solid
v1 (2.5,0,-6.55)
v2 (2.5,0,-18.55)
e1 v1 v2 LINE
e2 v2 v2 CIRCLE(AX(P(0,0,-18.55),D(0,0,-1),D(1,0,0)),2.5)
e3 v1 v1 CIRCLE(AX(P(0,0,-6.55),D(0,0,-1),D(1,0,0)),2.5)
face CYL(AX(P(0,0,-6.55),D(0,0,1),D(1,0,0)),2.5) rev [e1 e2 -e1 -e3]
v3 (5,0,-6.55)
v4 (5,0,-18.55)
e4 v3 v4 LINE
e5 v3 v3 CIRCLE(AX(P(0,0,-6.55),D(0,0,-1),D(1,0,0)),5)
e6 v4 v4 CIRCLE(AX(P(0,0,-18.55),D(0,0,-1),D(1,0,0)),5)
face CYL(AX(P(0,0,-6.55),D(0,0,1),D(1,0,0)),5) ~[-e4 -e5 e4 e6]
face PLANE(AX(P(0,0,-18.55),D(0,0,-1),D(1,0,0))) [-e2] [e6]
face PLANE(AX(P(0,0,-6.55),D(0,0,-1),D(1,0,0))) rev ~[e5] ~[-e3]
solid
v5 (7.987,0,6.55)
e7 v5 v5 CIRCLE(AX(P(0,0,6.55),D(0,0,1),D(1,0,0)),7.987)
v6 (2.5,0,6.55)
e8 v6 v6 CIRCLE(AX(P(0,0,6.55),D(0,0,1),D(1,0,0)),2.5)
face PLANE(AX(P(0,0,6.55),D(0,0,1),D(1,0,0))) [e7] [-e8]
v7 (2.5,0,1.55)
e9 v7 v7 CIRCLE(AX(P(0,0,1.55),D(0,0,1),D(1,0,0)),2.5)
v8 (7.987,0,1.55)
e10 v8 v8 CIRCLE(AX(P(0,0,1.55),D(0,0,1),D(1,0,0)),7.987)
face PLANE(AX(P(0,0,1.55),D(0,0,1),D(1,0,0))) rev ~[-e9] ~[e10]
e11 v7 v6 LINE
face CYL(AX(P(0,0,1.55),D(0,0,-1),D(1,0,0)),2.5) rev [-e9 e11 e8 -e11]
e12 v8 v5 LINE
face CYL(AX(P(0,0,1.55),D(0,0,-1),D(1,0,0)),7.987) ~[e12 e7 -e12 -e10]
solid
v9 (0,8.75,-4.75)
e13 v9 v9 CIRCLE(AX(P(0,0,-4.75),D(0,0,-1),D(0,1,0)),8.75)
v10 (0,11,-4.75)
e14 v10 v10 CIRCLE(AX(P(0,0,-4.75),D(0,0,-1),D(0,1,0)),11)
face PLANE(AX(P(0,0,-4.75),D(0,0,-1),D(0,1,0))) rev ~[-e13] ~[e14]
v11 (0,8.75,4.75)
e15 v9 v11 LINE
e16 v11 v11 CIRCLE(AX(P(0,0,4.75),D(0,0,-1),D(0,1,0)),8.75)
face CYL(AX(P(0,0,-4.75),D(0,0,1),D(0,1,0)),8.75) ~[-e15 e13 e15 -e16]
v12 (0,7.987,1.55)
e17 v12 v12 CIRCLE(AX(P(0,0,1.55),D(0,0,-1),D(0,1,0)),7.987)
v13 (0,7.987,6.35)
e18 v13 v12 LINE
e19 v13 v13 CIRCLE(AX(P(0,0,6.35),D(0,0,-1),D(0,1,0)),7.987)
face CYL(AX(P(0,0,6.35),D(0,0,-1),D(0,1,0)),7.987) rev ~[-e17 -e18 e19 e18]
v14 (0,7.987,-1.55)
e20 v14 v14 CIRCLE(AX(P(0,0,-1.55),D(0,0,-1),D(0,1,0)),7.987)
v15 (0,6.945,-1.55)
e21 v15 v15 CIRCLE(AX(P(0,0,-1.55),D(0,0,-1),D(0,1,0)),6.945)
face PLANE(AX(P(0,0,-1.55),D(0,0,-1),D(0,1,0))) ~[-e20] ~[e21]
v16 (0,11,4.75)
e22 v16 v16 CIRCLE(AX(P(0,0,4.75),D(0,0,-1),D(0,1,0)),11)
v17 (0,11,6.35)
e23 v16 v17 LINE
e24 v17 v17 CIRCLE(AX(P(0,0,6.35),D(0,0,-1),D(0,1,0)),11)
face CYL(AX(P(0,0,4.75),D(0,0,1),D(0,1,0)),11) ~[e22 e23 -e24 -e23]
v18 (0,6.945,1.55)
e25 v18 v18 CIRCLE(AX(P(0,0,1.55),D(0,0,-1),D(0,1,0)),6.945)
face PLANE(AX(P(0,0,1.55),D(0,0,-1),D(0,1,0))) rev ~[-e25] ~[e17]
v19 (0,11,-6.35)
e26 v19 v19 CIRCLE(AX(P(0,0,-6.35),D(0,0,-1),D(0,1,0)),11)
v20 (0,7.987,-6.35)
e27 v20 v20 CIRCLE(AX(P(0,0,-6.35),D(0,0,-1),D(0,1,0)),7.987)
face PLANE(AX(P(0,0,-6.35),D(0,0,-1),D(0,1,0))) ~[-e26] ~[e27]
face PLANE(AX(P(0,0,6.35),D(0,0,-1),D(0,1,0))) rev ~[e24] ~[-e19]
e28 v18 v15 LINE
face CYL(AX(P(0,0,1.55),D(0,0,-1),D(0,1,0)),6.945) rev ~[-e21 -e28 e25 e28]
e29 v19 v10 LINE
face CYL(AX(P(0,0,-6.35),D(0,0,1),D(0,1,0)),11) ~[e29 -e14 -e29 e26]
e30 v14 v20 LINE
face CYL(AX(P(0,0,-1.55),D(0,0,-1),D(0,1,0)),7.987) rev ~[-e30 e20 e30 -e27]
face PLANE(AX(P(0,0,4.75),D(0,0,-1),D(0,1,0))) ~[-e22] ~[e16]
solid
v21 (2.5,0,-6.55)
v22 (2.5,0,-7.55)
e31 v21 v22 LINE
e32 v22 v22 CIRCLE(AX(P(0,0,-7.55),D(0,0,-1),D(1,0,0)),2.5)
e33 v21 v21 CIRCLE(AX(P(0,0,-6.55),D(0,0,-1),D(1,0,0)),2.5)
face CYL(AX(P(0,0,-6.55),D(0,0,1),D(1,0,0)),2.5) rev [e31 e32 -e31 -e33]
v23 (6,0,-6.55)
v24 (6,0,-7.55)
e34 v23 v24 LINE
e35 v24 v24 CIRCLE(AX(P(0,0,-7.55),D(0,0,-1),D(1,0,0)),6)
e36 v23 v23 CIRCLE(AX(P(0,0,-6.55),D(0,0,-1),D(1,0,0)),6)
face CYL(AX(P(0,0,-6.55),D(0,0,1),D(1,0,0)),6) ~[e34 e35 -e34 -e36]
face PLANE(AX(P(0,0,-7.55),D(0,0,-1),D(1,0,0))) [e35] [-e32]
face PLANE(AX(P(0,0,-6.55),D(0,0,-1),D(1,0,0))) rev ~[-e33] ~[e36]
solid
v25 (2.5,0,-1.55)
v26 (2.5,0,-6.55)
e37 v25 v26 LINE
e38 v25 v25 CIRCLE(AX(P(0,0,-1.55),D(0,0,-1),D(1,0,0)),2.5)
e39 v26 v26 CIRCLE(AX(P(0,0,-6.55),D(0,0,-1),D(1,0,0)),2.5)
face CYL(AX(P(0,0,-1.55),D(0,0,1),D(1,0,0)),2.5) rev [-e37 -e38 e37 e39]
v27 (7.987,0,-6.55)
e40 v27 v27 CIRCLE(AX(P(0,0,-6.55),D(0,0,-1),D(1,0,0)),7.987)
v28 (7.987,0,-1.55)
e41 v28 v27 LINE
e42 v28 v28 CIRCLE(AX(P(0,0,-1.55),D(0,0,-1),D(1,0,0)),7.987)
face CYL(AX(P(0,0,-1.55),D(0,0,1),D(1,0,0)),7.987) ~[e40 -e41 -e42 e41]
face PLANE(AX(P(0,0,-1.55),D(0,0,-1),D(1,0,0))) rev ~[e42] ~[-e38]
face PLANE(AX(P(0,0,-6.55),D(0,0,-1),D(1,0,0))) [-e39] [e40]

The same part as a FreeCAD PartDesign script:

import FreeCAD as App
import Part
import Sketcher
from FreeCAD import Vector


def add_polygon(sketch, points):
    """Adds a closed chain of lines whose ends are joined by coincident constraints."""
    first, n = sketch.GeometryCount, len(points)
    for a, b in zip(points, points[1:] + points[:1]):
        sketch.addGeometry(Part.LineSegment(App.Vector(*a, 0), App.Vector(*b, 0)), False)
    for i in range(n):
        sketch.addConstraint(Sketcher.Constraint("Coincident", first + i, 2, first + (i + 1) % n, 1))

doc = App.newDocument("Part")
body = doc.addObject("PartDesign::Body", "Body")

# Sketch on YZ plane
sketch1 = doc.addObject("Sketcher::SketchObject", "Sketch")
body.addObject(sketch1)
sketch1.AttachmentSupport = (doc.YZ_Plane, [""])
sketch1.MapMode = "FlatFace"
add_polygon(sketch1, [(11, 4.8), (11, 6.3), (8, 6.3), (8, 1.6), (6.9, 1.6), (6.9, -1.6), (8, -1.6), (8, -6.3), (11, -6.3), (11, -4.8), (8.8, -4.8), (8.8, 4.8)])  # lines 0-11
sketch1.addConstraint([
    Sketcher.Constraint("Vertical", 0),
    Sketcher.Constraint("Horizontal", 1),
    Sketcher.Constraint("Vertical", 2),
    Sketcher.Constraint("Horizontal", 3),
    Sketcher.Constraint("Vertical", 4),
    Sketcher.Constraint("Horizontal", 5),
    Sketcher.Constraint("Vertical", 6),
    Sketcher.Constraint("Horizontal", 7),
    Sketcher.Constraint("Vertical", 8),
    Sketcher.Constraint("Horizontal", 9),
    Sketcher.Constraint("Vertical", 10),
    Sketcher.Constraint("Horizontal", 11),
    Sketcher.Constraint("Symmetric", 2, 2, 5, 2, -1),
    Sketcher.Constraint("Symmetric", 0, 2, 7, 2, -1),
    Sketcher.Constraint("Equal", 0, 8),
    Sketcher.Constraint("DistanceY", 0, 1, 0, 2, 1.6),
    Sketcher.Constraint("DistanceY", 2, 2, 2, 1, 4.8),
    Sketcher.Constraint("DistanceY", 4, 2, 4, 1, 3.1),
    Sketcher.Constraint("DistanceX", -1, 1, 0, 2, 11.0),
    Sketcher.Constraint("DistanceX", 9, 2, 9, 1, 2.25),
    Sketcher.Constraint("DistanceX", 1, 2, 1, 1, 3.013),
    Sketcher.Constraint("DistanceX", 3, 2, 3, 1, 1.042),
])
revolution = doc.addObject("PartDesign::Revolution", "Revolution")
body.addObject(revolution)
revolution.Profile = sketch1
revolution.ReferenceAxis = (sketch1, ["V_Axis"])
revolution.Angle = 360
body2 = doc.addObject("PartDesign::Body", "Body001")

# Sketch on XY plane
sketch2 = doc.addObject("Sketcher::SketchObject", "Sketch001")
body2.addObject(sketch2)
sketch2.AttachmentSupport = (doc.getObject("XY_Plane001"), [""])
sketch2.MapMode = "FlatFace"
sketch2.AttachmentOffset = App.Placement(Vector(0, 0, -1.55), App.Rotation())
sketch2.addGeometry([
    Part.Circle(Vector(0, 0, 0), Vector(0, 0, 1), 8),
    Part.Circle(Vector(0, 0, 0), Vector(0, 0, 1), 2.5),
], False)
sketch2.addConstraint([
    Sketcher.Constraint("Coincident", 0, 3, -1, 1),
    Sketcher.Constraint("Coincident", 1, 3, -1, 1),
    Sketcher.Constraint("Diameter", 1, 5.0),
    Sketcher.Constraint("Diameter", 0, 15.974),
])
pad1 = doc.addObject("PartDesign::Pad", "Pad")
body2.addObject(pad1)
pad1.Profile = sketch2
pad1.Length = 5
pad1.Reversed = True
body3 = doc.addObject("PartDesign::Body", "Body002")

# Sketch on XY plane
sketch3 = doc.addObject("Sketcher::SketchObject", "Sketch002")
body3.addObject(sketch3)
sketch3.AttachmentSupport = (doc.getObject("XY_Plane002"), [""])
sketch3.MapMode = "FlatFace"
sketch3.AttachmentOffset = App.Placement(Vector(0, 0, 1.55), App.Rotation())
sketch3.addGeometry([
    Part.Circle(Vector(0, 0, 0), Vector(0, 0, 1), 8),
    Part.Circle(Vector(0, 0, 0), Vector(0, 0, 1), 2.5),
], False)
sketch3.addConstraint([
    Sketcher.Constraint("Coincident", 0, 3, -1, 1),
    Sketcher.Constraint("Coincident", 1, 3, -1, 1),
    Sketcher.Constraint("Diameter", 1, 5.0),
    Sketcher.Constraint("Diameter", 0, 15.974),
])
pad2 = doc.addObject("PartDesign::Pad", "Pad001")
body3.addObject(pad2)
pad2.Profile = sketch3
pad2.Length = 5
body4 = doc.addObject("PartDesign::Body", "Body003")

# Sketch on XY plane
sketch4 = doc.addObject("Sketcher::SketchObject", "Sketch003")
body4.addObject(sketch4)
sketch4.AttachmentSupport = (doc.getObject("XY_Plane003"), [""])
sketch4.MapMode = "FlatFace"
sketch4.AttachmentOffset = App.Placement(Vector(0, 0, -6.55), App.Rotation())
sketch4.addGeometry([
    Part.Circle(Vector(0, 0, 0), Vector(0, 0, 1), 5),
    Part.Circle(Vector(0, 0, 0), Vector(0, 0, 1), 2.5),
], False)
sketch4.addConstraint([
    Sketcher.Constraint("Coincident", 0, 3, -1, 1),
    Sketcher.Constraint("Coincident", 1, 3, -1, 1),
    Sketcher.Constraint("Diameter", 0, 10.0),
    Sketcher.Constraint("Diameter", 1, 5.0),
])
pad3 = doc.addObject("PartDesign::Pad", "Pad002")
body4.addObject(pad3)
pad3.Profile = sketch4
pad3.Length = 12
pad3.Reversed = True
body5 = doc.addObject("PartDesign::Body", "Body004")

# Sketch on XY plane
sketch5 = doc.addObject("Sketcher::SketchObject", "Sketch004")
body5.addObject(sketch5)
sketch5.AttachmentSupport = (doc.getObject("XY_Plane004"), [""])
sketch5.MapMode = "FlatFace"
sketch5.AttachmentOffset = App.Placement(Vector(0, 0, -6.55), App.Rotation())
sketch5.addGeometry([
    Part.Circle(Vector(0, 0, 0), Vector(0, 0, 1), 6),
    Part.Circle(Vector(0, 0, 0), Vector(0, 0, 1), 2.5),
], False)
sketch5.addConstraint([
    Sketcher.Constraint("Coincident", 0, 3, -1, 1),
    Sketcher.Constraint("Coincident", 1, 3, -1, 1),
    Sketcher.Constraint("Diameter", 0, 12.0),
    Sketcher.Constraint("Diameter", 1, 5.0),
])
pad4 = doc.addObject("PartDesign::Pad", "Pad003")
body5.addObject(pad4)
pad4.Profile = sketch5
pad4.Length = 1
pad4.Reversed = True

doc.recompute()
